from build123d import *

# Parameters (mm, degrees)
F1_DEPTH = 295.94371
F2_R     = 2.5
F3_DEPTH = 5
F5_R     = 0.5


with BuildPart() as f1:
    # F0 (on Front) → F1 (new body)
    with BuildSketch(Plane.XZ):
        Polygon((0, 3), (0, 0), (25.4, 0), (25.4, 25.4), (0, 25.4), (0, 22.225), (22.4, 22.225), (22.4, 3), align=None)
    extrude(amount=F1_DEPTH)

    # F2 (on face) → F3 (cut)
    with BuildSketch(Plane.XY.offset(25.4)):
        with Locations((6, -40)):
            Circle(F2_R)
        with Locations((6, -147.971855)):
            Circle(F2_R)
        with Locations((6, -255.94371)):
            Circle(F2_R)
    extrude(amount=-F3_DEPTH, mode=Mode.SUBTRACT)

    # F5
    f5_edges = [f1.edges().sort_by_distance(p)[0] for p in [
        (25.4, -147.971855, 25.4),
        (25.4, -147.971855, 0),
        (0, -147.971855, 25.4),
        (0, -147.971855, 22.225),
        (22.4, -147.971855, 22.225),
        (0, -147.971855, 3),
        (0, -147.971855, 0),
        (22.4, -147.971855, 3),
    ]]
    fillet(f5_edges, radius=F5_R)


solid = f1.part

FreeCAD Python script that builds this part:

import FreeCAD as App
import Part
import Sketcher
Q = App.Units.Quantity


def edges_at(feature, points):
    """Names of the edges that pass closest to the given points."""
    edges = feature.Shape.Edges
    near = lambda p: min(range(len(edges)), key=lambda i: edges[i].distToShape(Part.Vertex(*p))[0])
    return sorted({f"Edge{near(p) + 1}" for p in points})


def add_polygon(sketch, points):
    """Adds a closed chain of lines whose ends are joined by coincident constraints."""
    first, n = sketch.GeometryCount, len(points)
    for a, b in zip(points, points[1:] + points[:1]):
        sketch.addGeometry(Part.LineSegment(App.Vector(*a, 0), App.Vector(*b, 0)), False)
    for i in range(n):
        sketch.addConstraint(Sketcher.Constraint("Coincident", first + i, 2, first + (i + 1) % n, 1))

doc = App.newDocument("Part")
body = doc.addObject("PartDesign::Body", "Body")

sketch1 = doc.addObject("Sketcher::SketchObject", "Sketch")
body.addObject(sketch1)
sketch1.AttachmentSupport = (doc.XZ_Plane, [""])
sketch1.MapMode = "FlatFace"
add_polygon(sketch1, [(0, 3), (0, 0), (25.4, 0), (25.4, 25.4), (0, 25.4), (0, 22.2), (22.4, 22.2), (22.4, 3)])
sketch1.addConstraint([
    Sketcher.Constraint("Vertical", 0),
    Sketcher.Constraint("Horizontal", 1),
    Sketcher.Constraint("Vertical", 2),
    Sketcher.Constraint("Horizontal", 3),
    Sketcher.Constraint("Vertical", 4),
    Sketcher.Constraint("Horizontal", 5),
    Sketcher.Constraint("Vertical", 6),
    Sketcher.Constraint("Horizontal", 7),
    Sketcher.Constraint("Coincident", 0, 2, -1, 1),
    Sketcher.Constraint("PointOnObject", 3, 2, -2),
    Sketcher.Constraint("Equal", 3, 2),
    Sketcher.Constraint("DistanceY", 0, 2, 0, 1, Q("3 mm")),
    Sketcher.Constraint("DistanceX", 1, 1, 1, 2, Q("25.4 mm")),
    Sketcher.Constraint("DistanceX", 5, 1, 5, 2, Q("22.4 mm")),
    Sketcher.Constraint("DistanceY", 4, 2, 4, 1, Q("3.175 mm")),
])
pad1 = doc.addObject("PartDesign::Pad", "Pad")
body.addObject(pad1)
pad1.Profile = sketch1
pad1.Length = 295.94371

sketch2 = doc.addObject("Sketcher::SketchObject", "Sketch001")
body.addObject(sketch2)
sketch2.AttachmentSupport = (doc.XY_Plane, [""])
sketch2.MapMode = "FlatFace"
sketch2.AttachmentOffset = App.Placement(App.Vector(0, 0, 25.4), App.Rotation())
sketch2.addGeometry([
    Part.Circle(App.Vector(6, -40, 0), App.Vector(0, 0, 1), 2.5),
    Part.Circle(App.Vector(6, -148, 0), App.Vector(0, 0, 1), 2.5),
    Part.Circle(App.Vector(6, -255.9, 0), App.Vector(0, 0, 1), 2.5),
], False)
sketch2.addConstraint([
    Sketcher.Constraint("Equal", 0, 1),
    Sketcher.Constraint("Equal", 1, 2),
    Sketcher.Constraint("Vertical", 0, 3, 1, 3),
    Sketcher.Constraint("Vertical", 1, 3, 2, 3),
    Sketcher.Constraint("Diameter", 0, Q("5 mm")),
    Sketcher.Constraint("DistanceX", -1, 1, 0, 3, Q("6 mm")),
    Sketcher.Constraint("DistanceY", 0, 3, -1, 1, Q("40 mm")),
    Sketcher.Constraint("DistanceY", 2, 3, -1, 1, Q("255.94371 mm")),
    Sketcher.Constraint("DistanceY", 1, 3, -1, 1, Q("147.971855 mm")),
])
pocket1 = doc.addObject("PartDesign::Pocket", "Pocket")
body.addObject(pocket1)
pocket1.Profile = sketch2
pocket1.Length = 5
doc.recompute()

fillet = doc.addObject("PartDesign::Fillet", "Fillet")
body.addObject(fillet)
fillet.Base = (pocket1, edges_at(pocket1, [
    (25.4, -147.972, 25.4),
    (25.4, -147.972, 0),
    (0, -147.972, 25.4),
    (0, -147.972, 22.225),
    (22.4, -147.972, 22.225),
    (0, -147.972, 3),
    (0, -147.972, 0),
    (22.4, -147.972, 3),
]))
fillet.Radius = 0.5

doc.recompute()
